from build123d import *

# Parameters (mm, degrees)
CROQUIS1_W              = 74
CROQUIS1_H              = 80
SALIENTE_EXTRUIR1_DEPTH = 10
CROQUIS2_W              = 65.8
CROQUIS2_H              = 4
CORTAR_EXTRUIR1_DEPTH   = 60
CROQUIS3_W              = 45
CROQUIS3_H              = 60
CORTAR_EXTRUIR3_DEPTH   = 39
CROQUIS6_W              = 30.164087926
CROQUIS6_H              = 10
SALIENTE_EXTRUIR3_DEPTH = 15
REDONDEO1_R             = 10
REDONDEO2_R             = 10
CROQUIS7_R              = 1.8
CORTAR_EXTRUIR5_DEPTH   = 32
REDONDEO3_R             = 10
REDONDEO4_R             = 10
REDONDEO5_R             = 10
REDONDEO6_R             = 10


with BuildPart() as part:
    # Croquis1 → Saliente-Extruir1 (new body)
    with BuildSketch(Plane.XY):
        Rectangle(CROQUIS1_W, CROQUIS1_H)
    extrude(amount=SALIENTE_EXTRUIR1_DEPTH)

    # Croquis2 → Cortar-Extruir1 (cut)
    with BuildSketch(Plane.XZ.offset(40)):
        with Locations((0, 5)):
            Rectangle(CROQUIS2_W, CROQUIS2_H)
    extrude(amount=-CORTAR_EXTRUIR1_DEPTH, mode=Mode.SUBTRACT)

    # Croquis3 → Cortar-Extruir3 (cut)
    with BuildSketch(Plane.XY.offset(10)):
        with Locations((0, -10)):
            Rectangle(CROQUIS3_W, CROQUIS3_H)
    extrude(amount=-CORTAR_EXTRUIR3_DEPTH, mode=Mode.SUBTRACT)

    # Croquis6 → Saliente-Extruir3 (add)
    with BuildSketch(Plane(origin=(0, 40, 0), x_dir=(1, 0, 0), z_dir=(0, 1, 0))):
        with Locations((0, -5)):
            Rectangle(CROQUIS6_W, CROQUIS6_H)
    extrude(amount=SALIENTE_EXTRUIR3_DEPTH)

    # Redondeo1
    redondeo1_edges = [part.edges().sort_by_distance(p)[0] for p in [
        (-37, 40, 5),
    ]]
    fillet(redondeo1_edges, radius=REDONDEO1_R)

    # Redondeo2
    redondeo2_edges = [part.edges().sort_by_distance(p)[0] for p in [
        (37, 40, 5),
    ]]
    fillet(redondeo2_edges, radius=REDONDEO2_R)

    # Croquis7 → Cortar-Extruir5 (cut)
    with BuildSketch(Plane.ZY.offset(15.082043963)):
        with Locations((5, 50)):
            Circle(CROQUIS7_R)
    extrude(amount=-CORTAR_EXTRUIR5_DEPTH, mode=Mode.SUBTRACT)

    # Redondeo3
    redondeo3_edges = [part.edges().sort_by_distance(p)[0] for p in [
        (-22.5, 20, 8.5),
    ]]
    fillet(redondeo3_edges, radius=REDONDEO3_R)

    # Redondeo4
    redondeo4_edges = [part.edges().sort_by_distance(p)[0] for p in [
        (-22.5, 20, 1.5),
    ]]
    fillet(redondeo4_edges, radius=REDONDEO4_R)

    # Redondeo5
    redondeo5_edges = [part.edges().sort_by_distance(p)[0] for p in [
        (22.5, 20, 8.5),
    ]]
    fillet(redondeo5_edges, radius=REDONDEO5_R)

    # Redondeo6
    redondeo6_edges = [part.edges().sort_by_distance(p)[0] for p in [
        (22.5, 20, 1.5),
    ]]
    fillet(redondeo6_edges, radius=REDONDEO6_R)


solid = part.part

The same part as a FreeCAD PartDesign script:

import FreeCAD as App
import Part
import Sketcher

V = App.Vector


def edges_at(feature, points):
    """Names of the edges that pass closest to the given points."""
    edges = feature.Shape.Edges
    near = lambda p: min(range(len(edges)), key=lambda i: edges[i].distToShape(Part.Vertex(*p))[0])
    return sorted({f"Edge{near(p) + 1}" for p in points})


def add_polygon(sketch, points):
    """Adds a closed chain of lines whose ends are joined by coincident constraints."""
    first, n = sketch.GeometryCount, len(points)
    for a, b in zip(points, points[1:] + points[:1]):
        sketch.addGeometry(Part.LineSegment(App.Vector(*a, 0), App.Vector(*b, 0)), False)
    for i in range(n):
        sketch.addConstraint(Sketcher.Constraint("Coincident", first + i, 2, first + (i + 1) % n, 1))

doc = App.newDocument("Part")
body = doc.addObject("PartDesign::Body", "Body")

# Sketch on XY plane
sketch1 = doc.addObject("Sketcher::SketchObject", "Sketch")
body.addObject(sketch1)
sketch1.AttachmentSupport = (doc.XY_Plane, [""])
sketch1.MapMode = "FlatFace"
add_polygon(sketch1, [(-37, 40), (-37, -40), (37, -40), (37, 40)])  # lines 0-3
sketch1.addConstraint([
    Sketcher.Constraint("Vertical", 0),
    Sketcher.Constraint("Horizontal", 1),
    Sketcher.Constraint("Vertical", 2),
    Sketcher.Constraint("Horizontal", 3),
    Sketcher.Constraint("Symmetric", 0, 2, 2, 2, -1, 1),
    Sketcher.Constraint("DistanceX", 1, 1, 1, 2, 74.0),
    Sketcher.Constraint("DistanceY", 0, 2, 0, 1, 80.0),
])
pad1 = doc.addObject("PartDesign::Pad", "Pad")
body.addObject(pad1)
pad1.Profile = sketch1
pad1.Length = 10

# Sketch on XZ plane
sketch2 = doc.addObject("Sketcher::SketchObject", "Sketch001")
body.addObject(sketch2)
sketch2.AttachmentSupport = (doc.XZ_Plane, [""])
sketch2.MapMode = "FlatFace"
sketch2.AttachmentOffset = App.Placement(V(0, 0, 40), App.Rotation())
add_polygon(sketch2, [(-32.9, 7), (-32.9, 3), (32.9, 3), (32.9, 7)])  # lines 0-3
sketch2.addConstraint([
    Sketcher.Constraint("Vertical", 0),
    Sketcher.Constraint("Horizontal", 1),
    Sketcher.Constraint("Vertical", 2),
    Sketcher.Constraint("Horizontal", 3),
    Sketcher.Constraint("DistanceY", 0, 2, 0, 1, 4.0),
    Sketcher.Constraint("DistanceX", 1, 1, 1, 2, 65.8),
    Sketcher.Constraint("DistanceY", -1, 1, 0, 2, 3.0),
    Sketcher.Constraint("DistanceX", 0, 2, -1, 1, 32.9),
])
pocket1 = doc.addObject("PartDesign::Pocket", "Pocket")
body.addObject(pocket1)
pocket1.Profile = sketch2
pocket1.Length = 60

# Sketch on XY plane
sketch3 = doc.addObject("Sketcher::SketchObject", "Sketch002")
body.addObject(sketch3)
sketch3.AttachmentSupport = (doc.XY_Plane, [""])
sketch3.MapMode = "FlatFace"
sketch3.AttachmentOffset = App.Placement(V(0, 0, 10), App.Rotation())
add_polygon(sketch3, [(-22.5, 20), (-22.5, -40), (22.5, -40), (22.5, 20)])  # lines 0-3
sketch3.addConstraint([
    Sketcher.Constraint("Vertical", 0),
    Sketcher.Constraint("Horizontal", 1),
    Sketcher.Constraint("Vertical", 2),
    Sketcher.Constraint("Horizontal", 3),
    Sketcher.Constraint("DistanceX", 1, 1, 1, 2, 45.0),
    Sketcher.Constraint("DistanceY", 0, 2, 0, 1, 60.0),
    Sketcher.Constraint("DistanceY", 0, 2, -1, 1, 40.0),
    Sketcher.Constraint("DistanceX", 0, 2, -1, 1, 22.5),
])
pocket2 = doc.addObject("PartDesign::Pocket", "Pocket001")
body.addObject(pocket2)
pocket2.Profile = sketch3
pocket2.Length = 39

# Sketch on XZ plane
sketch4 = doc.addObject("Sketcher::SketchObject", "Sketch003")
body.addObject(sketch4)
sketch4.AttachmentSupport = (doc.XZ_Plane, [""])
sketch4.MapMode = "FlatFace"
sketch4.AttachmentOffset = App.Placement(V(0, 0, -40), App.Rotation())
add_polygon(sketch4, [(-15.082044, 0), (-15.082044, 10), (15.082044, 10), (15.082044, 0)])  # lines 0-3
sketch4.addConstraint([
    Sketcher.Constraint("Vertical", 0),
    Sketcher.Constraint("Horizontal", 1),
    Sketcher.Constraint("Vertical", 2),
    Sketcher.Constraint("Horizontal", 3),
    Sketcher.Constraint("Symmetric", 2, 2, 3, 2, -1, 1),
    Sketcher.Constraint("DistanceY", 0, 1, 0, 2, 10.0),
    Sketcher.Constraint("DistanceX", 1, 1, 1, 2, 30.164088),
])
pad2 = doc.addObject("PartDesign::Pad", "Pad001")
body.addObject(pad2)
pad2.Profile = sketch4
pad2.Length = 15
pad2.Reversed = True
doc.recompute()

fillet = doc.addObject("PartDesign::Fillet", "Fillet")
body.addObject(fillet)
fillet.Base = (pad2, edges_at(pad2, [(-37, 40, 5)]))
fillet.Radius = 10
doc.recompute()

fillet2 = doc.addObject("PartDesign::Fillet", "Fillet001")
body.addObject(fillet2)
fillet2.Base = (fillet, edges_at(fillet, [(37, 40, 5)]))
fillet2.Radius = 10

# Sketch on YZ plane
sketch5 = doc.addObject("Sketcher::SketchObject", "Sketch004")
body.addObject(sketch5)
sketch5.AttachmentSupport = (doc.YZ_Plane, [""])
sketch5.MapMode = "FlatFace"
sketch5.AttachmentOffset = App.Placement(V(0, 0, -15.082044), App.Rotation())
sketch5.addGeometry(Part.Circle(V(50, 5, 0), V(0, 0, 1), 1.8), False)
sketch5.addConstraint([
    Sketcher.Constraint("Diameter", 0, 3.6),
    Sketcher.Constraint("DistanceX", -1, 1, 0, 3, 50.0),
    Sketcher.Constraint("DistanceY", -1, 1, 0, 3, 5.0),
])
pocket3 = doc.addObject("PartDesign::Pocket", "Pocket002")
body.addObject(pocket3)
pocket3.Profile = sketch5
pocket3.Length = 32
pocket3.Reversed = True
doc.recompute()

fillet3 = doc.addObject("PartDesign::Fillet", "Fillet002")
body.addObject(fillet3)
fillet3.Base = (pocket3, edges_at(pocket3, [(-22.5, 20, 8.5)]))
fillet3.Radius = 10
doc.recompute()

fillet4 = doc.addObject("PartDesign::Fillet", "Fillet003")
body.addObject(fillet4)
fillet4.Base = (fillet3, edges_at(fillet3, [(-22.5, 20, 1.5)]))
fillet4.Radius = 10
doc.recompute()

fillet5 = doc.addObject("PartDesign::Fillet", "Fillet004")
body.addObject(fillet5)
fillet5.Base = (fillet4, edges_at(fillet4, [(22.5, 20, 8.5)]))
fillet5.Radius = 10
doc.recompute()

fillet6 = doc.addObject("PartDesign::Fillet", "Fillet005")
body.addObject(fillet6)
fillet6.Base = (fillet5, edges_at(fillet5, [(22.5, 20, 1.5)]))
fillet6.Radius = 10

doc.recompute()
